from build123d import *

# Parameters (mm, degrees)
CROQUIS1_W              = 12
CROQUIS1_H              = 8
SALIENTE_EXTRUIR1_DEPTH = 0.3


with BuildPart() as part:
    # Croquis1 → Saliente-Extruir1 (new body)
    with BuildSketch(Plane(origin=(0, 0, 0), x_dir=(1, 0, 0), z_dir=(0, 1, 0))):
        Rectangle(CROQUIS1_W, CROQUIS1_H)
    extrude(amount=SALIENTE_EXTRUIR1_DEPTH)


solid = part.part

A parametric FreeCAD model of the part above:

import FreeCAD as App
import Part
import Sketcher


def add_polygon(sketch, points):
    """Adds a closed chain of lines whose ends are joined by coincident constraints."""
    first, n = sketch.GeometryCount, len(points)
    for a, b in zip(points, points[1:] + points[:1]):
        sketch.addGeometry(Part.LineSegment(App.Vector(*a, 0), App.Vector(*b, 0)), False)
    for i in range(n):
        sketch.addConstraint(Sketcher.Constraint("Coincident", first + i, 2, first + (i + 1) % n, 1))

doc = App.newDocument("Part")
body = doc.addObject("PartDesign::Body", "Body")

# Sketch on XZ plane
sketch1 = body.newObject("Sketcher::SketchObject", "Sketch")
sketch1.AttachmentSupport = (doc.getObject("XZ_Plane"), [""])
sketch1.MapMode = "FlatFace"
add_polygon(sketch1, [(-6, -4), (-6, 4), (6, 4), (6, -4)])  # lines 0-3
sketch1.addConstraint([
    Sketcher.Constraint("Vertical", 0),
    Sketcher.Constraint("Horizontal", 1),
    Sketcher.Constraint("Vertical", 2),
    Sketcher.Constraint("Horizontal", 3),
    Sketcher.Constraint("Symmetric", 0, 2, 2, 2, -1, 1),
    Sketcher.Constraint("DistanceX", 1, 1, 1, 2, 12.0),
    Sketcher.Constraint("DistanceY", 0, 1, 0, 2, 8.0),
])
pad1 = body.newObject("PartDesign::Pad", "Pad")
pad1.Profile = sketch1
pad1.Length = 0.3
pad1.Reversed = True

doc.recompute()
